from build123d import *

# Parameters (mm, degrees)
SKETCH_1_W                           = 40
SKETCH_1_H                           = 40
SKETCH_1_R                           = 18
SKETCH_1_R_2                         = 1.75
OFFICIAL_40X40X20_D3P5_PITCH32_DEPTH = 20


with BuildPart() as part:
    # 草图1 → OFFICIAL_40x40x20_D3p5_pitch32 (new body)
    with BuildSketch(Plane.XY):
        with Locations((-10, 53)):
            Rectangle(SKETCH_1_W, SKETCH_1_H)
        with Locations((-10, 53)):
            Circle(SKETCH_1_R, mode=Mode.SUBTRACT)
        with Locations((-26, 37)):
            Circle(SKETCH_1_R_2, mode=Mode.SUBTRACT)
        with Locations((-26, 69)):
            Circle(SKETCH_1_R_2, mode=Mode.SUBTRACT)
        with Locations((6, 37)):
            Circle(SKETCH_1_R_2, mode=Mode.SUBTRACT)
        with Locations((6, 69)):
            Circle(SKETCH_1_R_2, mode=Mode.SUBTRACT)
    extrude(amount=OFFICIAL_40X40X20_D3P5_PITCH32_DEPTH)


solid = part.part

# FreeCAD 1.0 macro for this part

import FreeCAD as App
import Part
import Sketcher


def add_polygon(sketch, points):
    """Adds a closed chain of lines whose ends are joined by coincident constraints."""
    first, n = sketch.GeometryCount, len(points)
    for a, b in zip(points, points[1:] + points[:1]):
        sketch.addGeometry(Part.LineSegment(App.Vector(*a, 0), App.Vector(*b, 0)), False)
    for i in range(n):
        sketch.addConstraint(Sketcher.Constraint("Coincident", first + i, 2, first + (i + 1) % n, 1))

doc = App.newDocument("Part")
params = doc.addObject("Spreadsheet::Sheet", "Params")
for row, (alias, value) in enumerate([
    ("sketch1_diameter", "36 mm"),
    ("sketch1_diameter2", "3.5 mm"),
    ("sketch1_width", "40 mm"),
    ("pad1_length", "20 mm"),
], start=1):
    params.set(f"A{row}", alias)
    params.set(f"B{row}", "=" + value)
    params.setAlias(f"B{row}", alias)

body = doc.addObject("PartDesign::Body", "Body")

sketch1 = body.newObject("Sketcher::SketchObject", "Sketch")
sketch1.AttachmentSupport = (doc.getObject("XY_Plane"), [""])
sketch1.MapMode = "FlatFace"
add_polygon(sketch1, [(-30, 73), (-30, 33), (10, 33), (10, 73)])
sketch1.addGeometry(Part.Circle(App.Vector(-26, 37, 0), App.Vector(0, 0, 1), 1.8), False)
sketch1.addGeometry(Part.Circle(App.Vector(6, 37, 0), App.Vector(0, 0, 1), 1.8), False)
sketch1.addGeometry(Part.Circle(App.Vector(-26, 69, 0), App.Vector(0, 0, 1), 1.8), False)
sketch1.addGeometry(Part.Circle(App.Vector(-10, 53, 0), App.Vector(0, 0, 1), 18), False)
sketch1.addGeometry(Part.Circle(App.Vector(6, 69, 0), App.Vector(0, 0, 1), 1.8), False)
sketch1.addConstraint([
    Sketcher.Constraint("Vertical", 0),
    Sketcher.Constraint("Horizontal", 1),
    Sketcher.Constraint("Vertical", 2),
    Sketcher.Constraint("Horizontal", 3),
    Sketcher.Constraint("Equal", 4, 5),
    Sketcher.Constraint("Equal", 5, 6),
    Sketcher.Constraint("Equal", 6, 8),
    Sketcher.Constraint("Horizontal", 4, 3, 5, 3),
    Sketcher.Constraint("Horizontal", 6, 3, 8, 3),
    Sketcher.Constraint("Vertical", 4, 3, 6, 3),
    Sketcher.Constraint("Vertical", 5, 3, 8, 3),
    Sketcher.Constraint("Equal", 3, 0),
    Sketcher.Constraint("Diameter", 7, 36.0),
    Sketcher.Constraint("Diameter", 4, 3.5),
    Sketcher.Constraint("DistanceX", 1, 1, 1, 2, 40.0),
    Sketcher.Constraint("DistanceX", 4, 3, -1, 1, 26.0),
    Sketcher.Constraint("DistanceY", -1, 1, 4, 3, 37.0),
    Sketcher.Constraint("DistanceX", -1, 1, 5, 3, 6.0),
    Sketcher.Constraint("DistanceY", -1, 1, 6, 3, 69.0),
    Sketcher.Constraint("DistanceX", 7, 3, -1, 1, 10.0),
    Sketcher.Constraint("DistanceY", -1, 1, 7, 3, 53.0),
    Sketcher.Constraint("DistanceX", 0, 2, -1, 1, 30.0),
    Sketcher.Constraint("DistanceY", -1, 1, 0, 2, 33.0),
])
sketch1.setExpression("Constraints[16]", "Params.sketch1_diameter")
sketch1.setExpression("Constraints[17]", "Params.sketch1_diameter2")
sketch1.setExpression("Constraints[18]", "Params.sketch1_width")
pad1 = body.newObject("PartDesign::Pad", "Pad")
pad1.Profile = sketch1
pad1.setExpression("Length", "Params.pad1_length")

doc.recompute()
